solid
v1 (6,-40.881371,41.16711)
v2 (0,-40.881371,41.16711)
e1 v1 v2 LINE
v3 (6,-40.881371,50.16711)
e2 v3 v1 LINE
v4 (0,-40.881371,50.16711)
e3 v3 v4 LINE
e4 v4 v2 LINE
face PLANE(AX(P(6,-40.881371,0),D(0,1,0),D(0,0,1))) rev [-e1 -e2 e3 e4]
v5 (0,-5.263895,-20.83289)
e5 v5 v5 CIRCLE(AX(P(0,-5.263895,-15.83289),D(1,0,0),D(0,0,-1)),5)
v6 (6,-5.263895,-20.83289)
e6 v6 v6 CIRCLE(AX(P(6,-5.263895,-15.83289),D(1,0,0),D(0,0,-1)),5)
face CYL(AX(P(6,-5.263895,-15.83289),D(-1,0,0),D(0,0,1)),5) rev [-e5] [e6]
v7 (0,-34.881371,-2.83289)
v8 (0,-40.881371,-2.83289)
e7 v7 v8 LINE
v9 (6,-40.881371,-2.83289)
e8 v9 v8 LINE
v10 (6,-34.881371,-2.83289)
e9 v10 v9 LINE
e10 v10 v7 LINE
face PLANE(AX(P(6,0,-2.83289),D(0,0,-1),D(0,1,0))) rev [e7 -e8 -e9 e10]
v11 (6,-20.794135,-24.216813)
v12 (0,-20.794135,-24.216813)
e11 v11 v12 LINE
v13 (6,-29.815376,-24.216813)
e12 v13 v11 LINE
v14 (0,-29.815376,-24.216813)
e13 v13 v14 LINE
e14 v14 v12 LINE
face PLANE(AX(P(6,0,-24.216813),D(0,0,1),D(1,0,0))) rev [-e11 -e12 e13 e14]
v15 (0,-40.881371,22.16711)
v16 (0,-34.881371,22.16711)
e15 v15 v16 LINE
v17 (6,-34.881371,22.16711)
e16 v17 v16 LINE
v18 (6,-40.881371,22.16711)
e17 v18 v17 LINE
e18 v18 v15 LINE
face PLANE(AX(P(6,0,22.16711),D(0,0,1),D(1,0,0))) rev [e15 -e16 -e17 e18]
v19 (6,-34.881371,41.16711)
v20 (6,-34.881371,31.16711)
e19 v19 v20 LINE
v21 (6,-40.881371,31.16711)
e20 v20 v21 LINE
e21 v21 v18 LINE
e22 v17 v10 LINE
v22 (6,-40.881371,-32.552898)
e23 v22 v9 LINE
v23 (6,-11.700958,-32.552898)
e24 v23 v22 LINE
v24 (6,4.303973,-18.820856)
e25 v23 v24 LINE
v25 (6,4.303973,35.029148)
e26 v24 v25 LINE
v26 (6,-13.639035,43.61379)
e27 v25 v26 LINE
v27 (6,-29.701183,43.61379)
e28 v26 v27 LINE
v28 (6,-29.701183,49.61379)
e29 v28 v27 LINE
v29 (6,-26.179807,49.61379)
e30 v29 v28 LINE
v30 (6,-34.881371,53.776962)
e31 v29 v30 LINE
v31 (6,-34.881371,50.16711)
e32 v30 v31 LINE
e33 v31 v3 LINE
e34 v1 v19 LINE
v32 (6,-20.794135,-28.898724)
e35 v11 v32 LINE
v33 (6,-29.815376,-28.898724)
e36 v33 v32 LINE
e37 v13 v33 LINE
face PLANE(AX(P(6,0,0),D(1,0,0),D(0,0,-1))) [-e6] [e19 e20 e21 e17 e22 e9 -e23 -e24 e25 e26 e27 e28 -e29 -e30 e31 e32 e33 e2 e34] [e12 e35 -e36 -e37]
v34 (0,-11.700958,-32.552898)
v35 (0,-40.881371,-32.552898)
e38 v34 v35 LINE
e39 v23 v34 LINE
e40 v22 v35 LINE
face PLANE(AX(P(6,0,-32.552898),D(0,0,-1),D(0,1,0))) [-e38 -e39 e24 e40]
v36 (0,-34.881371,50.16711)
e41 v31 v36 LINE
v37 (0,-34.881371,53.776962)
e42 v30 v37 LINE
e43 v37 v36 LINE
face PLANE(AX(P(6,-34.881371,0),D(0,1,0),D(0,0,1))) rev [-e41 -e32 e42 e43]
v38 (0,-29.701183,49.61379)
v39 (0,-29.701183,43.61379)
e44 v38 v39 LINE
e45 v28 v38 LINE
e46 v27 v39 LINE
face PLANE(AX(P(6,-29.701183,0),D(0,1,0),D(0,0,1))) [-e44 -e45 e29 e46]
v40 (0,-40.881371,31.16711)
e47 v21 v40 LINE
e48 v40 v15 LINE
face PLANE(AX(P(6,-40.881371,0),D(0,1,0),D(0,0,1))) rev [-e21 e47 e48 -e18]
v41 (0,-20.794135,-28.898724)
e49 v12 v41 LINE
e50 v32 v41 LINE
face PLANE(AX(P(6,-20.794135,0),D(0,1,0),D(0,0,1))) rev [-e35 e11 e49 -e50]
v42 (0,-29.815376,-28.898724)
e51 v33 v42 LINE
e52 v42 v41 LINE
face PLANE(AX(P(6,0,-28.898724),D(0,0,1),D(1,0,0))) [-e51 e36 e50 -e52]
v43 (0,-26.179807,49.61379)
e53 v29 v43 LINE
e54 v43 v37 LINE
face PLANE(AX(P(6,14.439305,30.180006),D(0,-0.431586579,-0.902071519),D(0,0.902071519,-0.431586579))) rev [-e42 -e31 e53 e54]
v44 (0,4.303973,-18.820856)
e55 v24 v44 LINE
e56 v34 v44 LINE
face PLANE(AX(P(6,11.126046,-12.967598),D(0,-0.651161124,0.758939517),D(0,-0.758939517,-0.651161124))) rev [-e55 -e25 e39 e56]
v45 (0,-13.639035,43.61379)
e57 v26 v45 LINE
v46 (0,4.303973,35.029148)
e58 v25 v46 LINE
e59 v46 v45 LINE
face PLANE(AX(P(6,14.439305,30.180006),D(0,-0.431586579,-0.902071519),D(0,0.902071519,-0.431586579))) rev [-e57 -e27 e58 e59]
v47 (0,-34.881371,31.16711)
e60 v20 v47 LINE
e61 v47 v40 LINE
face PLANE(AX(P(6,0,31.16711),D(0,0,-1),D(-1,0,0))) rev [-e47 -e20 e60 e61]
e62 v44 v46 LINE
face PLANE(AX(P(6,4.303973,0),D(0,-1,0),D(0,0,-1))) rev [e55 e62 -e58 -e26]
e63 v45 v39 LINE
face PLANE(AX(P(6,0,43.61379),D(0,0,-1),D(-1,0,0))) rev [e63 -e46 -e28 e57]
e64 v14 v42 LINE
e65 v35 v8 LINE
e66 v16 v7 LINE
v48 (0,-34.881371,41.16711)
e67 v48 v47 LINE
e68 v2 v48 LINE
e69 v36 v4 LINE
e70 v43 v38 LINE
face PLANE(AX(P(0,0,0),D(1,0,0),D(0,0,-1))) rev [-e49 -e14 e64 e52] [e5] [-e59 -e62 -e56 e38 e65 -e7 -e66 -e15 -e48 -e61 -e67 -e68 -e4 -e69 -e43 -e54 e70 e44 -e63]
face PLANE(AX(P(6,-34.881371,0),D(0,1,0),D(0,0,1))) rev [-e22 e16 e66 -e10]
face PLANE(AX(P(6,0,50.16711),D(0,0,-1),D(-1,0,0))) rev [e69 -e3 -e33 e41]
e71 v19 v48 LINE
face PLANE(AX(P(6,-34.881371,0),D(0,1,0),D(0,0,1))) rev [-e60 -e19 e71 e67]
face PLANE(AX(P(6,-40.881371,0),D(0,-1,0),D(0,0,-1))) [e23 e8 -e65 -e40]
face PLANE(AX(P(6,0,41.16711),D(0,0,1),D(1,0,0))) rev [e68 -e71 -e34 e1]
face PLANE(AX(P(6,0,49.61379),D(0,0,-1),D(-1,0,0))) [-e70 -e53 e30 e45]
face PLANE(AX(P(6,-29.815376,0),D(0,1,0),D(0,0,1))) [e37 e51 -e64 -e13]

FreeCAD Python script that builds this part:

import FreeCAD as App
import Part
import Sketcher

V = App.Vector

doc = App.newDocument("Part")
body = doc.addObject("PartDesign::Body", "Body")

# Sketch on YZ plane
sketch1 = body.newObject("Sketcher::SketchObject", "Sketch")
sketch1.AttachmentSupport = (doc.getObject("YZ_Plane"), [""])
sketch1.MapMode = "FlatFace"
sketch1.addGeometry(Part.LineSegment(V(-26.179807, 49.61379, 0), V(-34.881371, 53.776962, 0)), False)
sketch1.addGeometry(Part.LineSegment(V(-34.881371, 53.776962, 0), V(-34.881371, 50.16711, 0)), False)
sketch1.addGeometry(Part.LineSegment(V(-34.881371, 50.16711, 0), V(-40.881371, 50.16711, 0)), False)
sketch1.addGeometry(Part.LineSegment(V(-40.881371, 50.16711, 0), V(-40.881371, 41.16711, 0)), False)
sketch1.addGeometry(Part.LineSegment(V(-40.881371, 41.16711, 0), V(-34.881371, 41.16711, 0)), False)
sketch1.addGeometry(Part.LineSegment(V(-34.881371, 41.16711, 0), V(-34.881371, 31.16711, 0)), False)
sketch1.addGeometry(Part.LineSegment(V(-34.881371, 31.16711, 0), V(-40.881371, 31.16711, 0)), False)
sketch1.addGeometry(Part.LineSegment(V(-40.881371, 31.16711, 0), V(-40.881371, 22.16711, 0)), False)
sketch1.addGeometry(Part.LineSegment(V(-40.881371, 22.16711, 0), V(-34.881371, 22.16711, 0)), False)
sketch1.addGeometry(Part.LineSegment(V(-34.881371, 22.16711, 0), V(-34.881371, -2.83289, 0)), False)
sketch1.addGeometry(Part.LineSegment(V(-34.881371, -2.83289, 0), V(-40.881371, -2.83289, 0)), False)
sketch1.addGeometry(Part.LineSegment(V(-40.881371, -2.83289, 0), V(-40.881371, -32.552898, 0)), False)
sketch1.addGeometry(Part.LineSegment(V(-40.881371, -32.552898, 0), V(-11.700958, -32.552898, 0)), False)
sketch1.addGeometry(Part.LineSegment(V(-11.700958, -32.552898, 0), V(4.303973, -18.820856, 0)), False)
sketch1.addGeometry(Part.LineSegment(V(4.303973, -18.820856, 0), V(4.303973, 35.029148, 0)), False)
sketch1.addGeometry(Part.LineSegment(V(4.303973, 35.029148, 0), V(-13.639035, 43.61379, 0)), False)
sketch1.addGeometry(Part.LineSegment(V(-13.639035, 43.61379, 0), V(-29.701183, 43.61379, 0)), False)
sketch1.addGeometry(Part.LineSegment(V(-29.701183, 43.61379, 0), V(-29.701183, 49.61379, 0)), False)
sketch1.addGeometry(Part.LineSegment(V(-29.701183, 49.61379, 0), V(-26.179807, 49.61379, 0)), False)
sketch1.addGeometry(Part.LineSegment(V(-29.815376, -28.898724, 0), V(-29.815376, -24.216813, 0)), False)
sketch1.addGeometry(Part.LineSegment(V(-29.815376, -24.216813, 0), V(-20.794135, -24.216813, 0)), False)
sketch1.addGeometry(Part.LineSegment(V(-20.794135, -24.216813, 0), V(-20.794135, -28.898724, 0)), False)
sketch1.addGeometry(Part.LineSegment(V(-20.794135, -28.898724, 0), V(-29.815376, -28.898724, 0)), False)
sketch1.addGeometry(Part.Circle(V(-5.263895, -15.83289, 0), V(0, 0, 1), 5), False)
sketch1.addConstraint(Sketcher.Constraint("Coincident", 0, 2, 1, 1))
sketch1.addConstraint(Sketcher.Constraint("Coincident", 1, 2, 2, 1))
sketch1.addConstraint(Sketcher.Constraint("Coincident", 2, 2, 3, 1))
sketch1.addConstraint(Sketcher.Constraint("Coincident", 3, 2, 4, 1))
sketch1.addConstraint(Sketcher.Constraint("Coincident", 4, 2, 5, 1))
sketch1.addConstraint(Sketcher.Constraint("Coincident", 5, 2, 6, 1))
sketch1.addConstraint(Sketcher.Constraint("Coincident", 6, 2, 7, 1))
sketch1.addConstraint(Sketcher.Constraint("Coincident", 7, 2, 8, 1))
sketch1.addConstraint(Sketcher.Constraint("Coincident", 8, 2, 9, 1))
sketch1.addConstraint(Sketcher.Constraint("Coincident", 9, 2, 10, 1))
sketch1.addConstraint(Sketcher.Constraint("Coincident", 10, 2, 11, 1))
sketch1.addConstraint(Sketcher.Constraint("Coincident", 11, 2, 12, 1))
sketch1.addConstraint(Sketcher.Constraint("Coincident", 12, 2, 13, 1))
sketch1.addConstraint(Sketcher.Constraint("Coincident", 13, 2, 14, 1))
sketch1.addConstraint(Sketcher.Constraint("Coincident", 14, 2, 15, 1))
sketch1.addConstraint(Sketcher.Constraint("Coincident", 15, 2, 16, 1))
sketch1.addConstraint(Sketcher.Constraint("Coincident", 16, 2, 17, 1))
sketch1.addConstraint(Sketcher.Constraint("Coincident", 17, 2, 18, 1))
sketch1.addConstraint(Sketcher.Constraint("Coincident", 18, 2, 0, 1))
sketch1.addConstraint(Sketcher.Constraint("Coincident", 19, 2, 20, 1))
sketch1.addConstraint(Sketcher.Constraint("Coincident", 20, 2, 21, 1))
sketch1.addConstraint(Sketcher.Constraint("Coincident", 21, 2, 22, 1))
sketch1.addConstraint(Sketcher.Constraint("Coincident", 22, 2, 19, 1))
sketch1.addConstraint(Sketcher.Constraint("Vertical", 1))
sketch1.addConstraint(Sketcher.Constraint("Horizontal", 2))
sketch1.addConstraint(Sketcher.Constraint("Vertical", 3))
sketch1.addConstraint(Sketcher.Constraint("Horizontal", 4))
sketch1.addConstraint(Sketcher.Constraint("Vertical", 5))
sketch1.addConstraint(Sketcher.Constraint("Horizontal", 6))
sketch1.addConstraint(Sketcher.Constraint("Vertical", 7))
sketch1.addConstraint(Sketcher.Constraint("Horizontal", 8))
sketch1.addConstraint(Sketcher.Constraint("Vertical", 9))
sketch1.addConstraint(Sketcher.Constraint("Horizontal", 10))
sketch1.addConstraint(Sketcher.Constraint("Vertical", 11))
sketch1.addConstraint(Sketcher.Constraint("Horizontal", 12))
sketch1.addConstraint(Sketcher.Constraint("Vertical", 14))
sketch1.addConstraint(Sketcher.Constraint("Horizontal", 16))
sketch1.addConstraint(Sketcher.Constraint("Vertical", 17))
sketch1.addConstraint(Sketcher.Constraint("Horizontal", 18))
sketch1.addConstraint(Sketcher.Constraint("Vertical", 19))
sketch1.addConstraint(Sketcher.Constraint("Horizontal", 20))
sketch1.addConstraint(Sketcher.Constraint("Vertical", 21))
sketch1.addConstraint(Sketcher.Constraint("Horizontal", 22))
sketch1.addConstraint(Sketcher.Constraint("Parallel", 0, 15))
sketch1.addConstraint(Sketcher.Constraint("Vertical", 1, 2, 4, 2))
sketch1.addConstraint(Sketcher.Constraint("Vertical", 3, 2, 6, 2))
sketch1.addConstraint(Sketcher.Constraint("Vertical", 5, 2, 8, 2))
sketch1.addConstraint(Sketcher.Constraint("Vertical", 7, 2, 10, 2))
sketch1.addConstraint(Sketcher.Constraint("Equal", 3, 7))
sketch1.addConstraint(Sketcher.Constraint("Equal", 10, 17))
sketch1.addConstraint(Sketcher.Constraint("Diameter", 23, 10.0))
sketch1.addConstraint(Sketcher.Constraint("DistanceX", 2, 2, 2, 1, 6.0))
sketch1.addConstraint(Sketcher.Constraint("DistanceY", 3, 2, 3, 1, 9.0))
sketch1.addConstraint(Sketcher.Constraint("DistanceY", 5, 2, 5, 1, 10.0))
sketch1.addConstraint(Sketcher.Constraint("DistanceY", 9, 2, 9, 1, 25.0))
sketch1.addConstraint(Sketcher.Constraint("DistanceY", 23, 3, 1, 2, 66.0))
sketch1.addConstraint(Sketcher.Constraint("Distance", 0, 9.646202))
sketch1.addConstraint(Sketcher.Constraint("DistanceX", 16, 2, 16, 1, 16.062149))
sketch1.addConstraint(Sketcher.Constraint("DistanceX", 20, 1, 20, 2, 9.021242))
sketch1.addConstraint(Sketcher.Constraint("DistanceY", 1, 2, 1, 1, 3.609851))
sketch1.addConstraint(Sketcher.Constraint("DistanceY", 19, 1, 19, 2, 4.68191))
sketch1.addConstraint(Sketcher.Constraint("DistanceX", 12, 1, 12, 2, 29.180413))
sketch1.addConstraint(Sketcher.Constraint("DistanceX", 18, 1, 18, 2, 3.521376))
sketch1.addConstraint(Sketcher.Constraint("DistanceY", 11, 2, 11, 1, 29.720008))
sketch1.addConstraint(Sketcher.Constraint("DistanceY", 14, 1, 14, 2, 53.850004))
sketch1.addConstraint(Sketcher.Constraint("DistanceY", 23, 3, -1, 1, 15.83289))
sketch1.addConstraint(Sketcher.Constraint("DistanceX", 0, 2, -1, 1, 34.881371))
sketch1.addConstraint(Sketcher.Constraint("DistanceY", -1, 1, 14, 2, 35.029148))
sketch1.addConstraint(Sketcher.Constraint("DistanceY", -1, 1, 15, 2, 43.61379))
sketch1.addConstraint(Sketcher.Constraint("DistanceX", 23, 3, 13, 2, 9.567868))
sketch1.addConstraint(Sketcher.Constraint("DistanceX", 19, 2, 12, 2, 18.114419))
sketch1.addConstraint(Sketcher.Constraint("DistanceY", 19, 2, -1, 1, 24.216813))
pad1 = body.newObject("PartDesign::Pad", "Pad")
pad1.Profile = sketch1
pad1.Length = 6

doc.recompute()
